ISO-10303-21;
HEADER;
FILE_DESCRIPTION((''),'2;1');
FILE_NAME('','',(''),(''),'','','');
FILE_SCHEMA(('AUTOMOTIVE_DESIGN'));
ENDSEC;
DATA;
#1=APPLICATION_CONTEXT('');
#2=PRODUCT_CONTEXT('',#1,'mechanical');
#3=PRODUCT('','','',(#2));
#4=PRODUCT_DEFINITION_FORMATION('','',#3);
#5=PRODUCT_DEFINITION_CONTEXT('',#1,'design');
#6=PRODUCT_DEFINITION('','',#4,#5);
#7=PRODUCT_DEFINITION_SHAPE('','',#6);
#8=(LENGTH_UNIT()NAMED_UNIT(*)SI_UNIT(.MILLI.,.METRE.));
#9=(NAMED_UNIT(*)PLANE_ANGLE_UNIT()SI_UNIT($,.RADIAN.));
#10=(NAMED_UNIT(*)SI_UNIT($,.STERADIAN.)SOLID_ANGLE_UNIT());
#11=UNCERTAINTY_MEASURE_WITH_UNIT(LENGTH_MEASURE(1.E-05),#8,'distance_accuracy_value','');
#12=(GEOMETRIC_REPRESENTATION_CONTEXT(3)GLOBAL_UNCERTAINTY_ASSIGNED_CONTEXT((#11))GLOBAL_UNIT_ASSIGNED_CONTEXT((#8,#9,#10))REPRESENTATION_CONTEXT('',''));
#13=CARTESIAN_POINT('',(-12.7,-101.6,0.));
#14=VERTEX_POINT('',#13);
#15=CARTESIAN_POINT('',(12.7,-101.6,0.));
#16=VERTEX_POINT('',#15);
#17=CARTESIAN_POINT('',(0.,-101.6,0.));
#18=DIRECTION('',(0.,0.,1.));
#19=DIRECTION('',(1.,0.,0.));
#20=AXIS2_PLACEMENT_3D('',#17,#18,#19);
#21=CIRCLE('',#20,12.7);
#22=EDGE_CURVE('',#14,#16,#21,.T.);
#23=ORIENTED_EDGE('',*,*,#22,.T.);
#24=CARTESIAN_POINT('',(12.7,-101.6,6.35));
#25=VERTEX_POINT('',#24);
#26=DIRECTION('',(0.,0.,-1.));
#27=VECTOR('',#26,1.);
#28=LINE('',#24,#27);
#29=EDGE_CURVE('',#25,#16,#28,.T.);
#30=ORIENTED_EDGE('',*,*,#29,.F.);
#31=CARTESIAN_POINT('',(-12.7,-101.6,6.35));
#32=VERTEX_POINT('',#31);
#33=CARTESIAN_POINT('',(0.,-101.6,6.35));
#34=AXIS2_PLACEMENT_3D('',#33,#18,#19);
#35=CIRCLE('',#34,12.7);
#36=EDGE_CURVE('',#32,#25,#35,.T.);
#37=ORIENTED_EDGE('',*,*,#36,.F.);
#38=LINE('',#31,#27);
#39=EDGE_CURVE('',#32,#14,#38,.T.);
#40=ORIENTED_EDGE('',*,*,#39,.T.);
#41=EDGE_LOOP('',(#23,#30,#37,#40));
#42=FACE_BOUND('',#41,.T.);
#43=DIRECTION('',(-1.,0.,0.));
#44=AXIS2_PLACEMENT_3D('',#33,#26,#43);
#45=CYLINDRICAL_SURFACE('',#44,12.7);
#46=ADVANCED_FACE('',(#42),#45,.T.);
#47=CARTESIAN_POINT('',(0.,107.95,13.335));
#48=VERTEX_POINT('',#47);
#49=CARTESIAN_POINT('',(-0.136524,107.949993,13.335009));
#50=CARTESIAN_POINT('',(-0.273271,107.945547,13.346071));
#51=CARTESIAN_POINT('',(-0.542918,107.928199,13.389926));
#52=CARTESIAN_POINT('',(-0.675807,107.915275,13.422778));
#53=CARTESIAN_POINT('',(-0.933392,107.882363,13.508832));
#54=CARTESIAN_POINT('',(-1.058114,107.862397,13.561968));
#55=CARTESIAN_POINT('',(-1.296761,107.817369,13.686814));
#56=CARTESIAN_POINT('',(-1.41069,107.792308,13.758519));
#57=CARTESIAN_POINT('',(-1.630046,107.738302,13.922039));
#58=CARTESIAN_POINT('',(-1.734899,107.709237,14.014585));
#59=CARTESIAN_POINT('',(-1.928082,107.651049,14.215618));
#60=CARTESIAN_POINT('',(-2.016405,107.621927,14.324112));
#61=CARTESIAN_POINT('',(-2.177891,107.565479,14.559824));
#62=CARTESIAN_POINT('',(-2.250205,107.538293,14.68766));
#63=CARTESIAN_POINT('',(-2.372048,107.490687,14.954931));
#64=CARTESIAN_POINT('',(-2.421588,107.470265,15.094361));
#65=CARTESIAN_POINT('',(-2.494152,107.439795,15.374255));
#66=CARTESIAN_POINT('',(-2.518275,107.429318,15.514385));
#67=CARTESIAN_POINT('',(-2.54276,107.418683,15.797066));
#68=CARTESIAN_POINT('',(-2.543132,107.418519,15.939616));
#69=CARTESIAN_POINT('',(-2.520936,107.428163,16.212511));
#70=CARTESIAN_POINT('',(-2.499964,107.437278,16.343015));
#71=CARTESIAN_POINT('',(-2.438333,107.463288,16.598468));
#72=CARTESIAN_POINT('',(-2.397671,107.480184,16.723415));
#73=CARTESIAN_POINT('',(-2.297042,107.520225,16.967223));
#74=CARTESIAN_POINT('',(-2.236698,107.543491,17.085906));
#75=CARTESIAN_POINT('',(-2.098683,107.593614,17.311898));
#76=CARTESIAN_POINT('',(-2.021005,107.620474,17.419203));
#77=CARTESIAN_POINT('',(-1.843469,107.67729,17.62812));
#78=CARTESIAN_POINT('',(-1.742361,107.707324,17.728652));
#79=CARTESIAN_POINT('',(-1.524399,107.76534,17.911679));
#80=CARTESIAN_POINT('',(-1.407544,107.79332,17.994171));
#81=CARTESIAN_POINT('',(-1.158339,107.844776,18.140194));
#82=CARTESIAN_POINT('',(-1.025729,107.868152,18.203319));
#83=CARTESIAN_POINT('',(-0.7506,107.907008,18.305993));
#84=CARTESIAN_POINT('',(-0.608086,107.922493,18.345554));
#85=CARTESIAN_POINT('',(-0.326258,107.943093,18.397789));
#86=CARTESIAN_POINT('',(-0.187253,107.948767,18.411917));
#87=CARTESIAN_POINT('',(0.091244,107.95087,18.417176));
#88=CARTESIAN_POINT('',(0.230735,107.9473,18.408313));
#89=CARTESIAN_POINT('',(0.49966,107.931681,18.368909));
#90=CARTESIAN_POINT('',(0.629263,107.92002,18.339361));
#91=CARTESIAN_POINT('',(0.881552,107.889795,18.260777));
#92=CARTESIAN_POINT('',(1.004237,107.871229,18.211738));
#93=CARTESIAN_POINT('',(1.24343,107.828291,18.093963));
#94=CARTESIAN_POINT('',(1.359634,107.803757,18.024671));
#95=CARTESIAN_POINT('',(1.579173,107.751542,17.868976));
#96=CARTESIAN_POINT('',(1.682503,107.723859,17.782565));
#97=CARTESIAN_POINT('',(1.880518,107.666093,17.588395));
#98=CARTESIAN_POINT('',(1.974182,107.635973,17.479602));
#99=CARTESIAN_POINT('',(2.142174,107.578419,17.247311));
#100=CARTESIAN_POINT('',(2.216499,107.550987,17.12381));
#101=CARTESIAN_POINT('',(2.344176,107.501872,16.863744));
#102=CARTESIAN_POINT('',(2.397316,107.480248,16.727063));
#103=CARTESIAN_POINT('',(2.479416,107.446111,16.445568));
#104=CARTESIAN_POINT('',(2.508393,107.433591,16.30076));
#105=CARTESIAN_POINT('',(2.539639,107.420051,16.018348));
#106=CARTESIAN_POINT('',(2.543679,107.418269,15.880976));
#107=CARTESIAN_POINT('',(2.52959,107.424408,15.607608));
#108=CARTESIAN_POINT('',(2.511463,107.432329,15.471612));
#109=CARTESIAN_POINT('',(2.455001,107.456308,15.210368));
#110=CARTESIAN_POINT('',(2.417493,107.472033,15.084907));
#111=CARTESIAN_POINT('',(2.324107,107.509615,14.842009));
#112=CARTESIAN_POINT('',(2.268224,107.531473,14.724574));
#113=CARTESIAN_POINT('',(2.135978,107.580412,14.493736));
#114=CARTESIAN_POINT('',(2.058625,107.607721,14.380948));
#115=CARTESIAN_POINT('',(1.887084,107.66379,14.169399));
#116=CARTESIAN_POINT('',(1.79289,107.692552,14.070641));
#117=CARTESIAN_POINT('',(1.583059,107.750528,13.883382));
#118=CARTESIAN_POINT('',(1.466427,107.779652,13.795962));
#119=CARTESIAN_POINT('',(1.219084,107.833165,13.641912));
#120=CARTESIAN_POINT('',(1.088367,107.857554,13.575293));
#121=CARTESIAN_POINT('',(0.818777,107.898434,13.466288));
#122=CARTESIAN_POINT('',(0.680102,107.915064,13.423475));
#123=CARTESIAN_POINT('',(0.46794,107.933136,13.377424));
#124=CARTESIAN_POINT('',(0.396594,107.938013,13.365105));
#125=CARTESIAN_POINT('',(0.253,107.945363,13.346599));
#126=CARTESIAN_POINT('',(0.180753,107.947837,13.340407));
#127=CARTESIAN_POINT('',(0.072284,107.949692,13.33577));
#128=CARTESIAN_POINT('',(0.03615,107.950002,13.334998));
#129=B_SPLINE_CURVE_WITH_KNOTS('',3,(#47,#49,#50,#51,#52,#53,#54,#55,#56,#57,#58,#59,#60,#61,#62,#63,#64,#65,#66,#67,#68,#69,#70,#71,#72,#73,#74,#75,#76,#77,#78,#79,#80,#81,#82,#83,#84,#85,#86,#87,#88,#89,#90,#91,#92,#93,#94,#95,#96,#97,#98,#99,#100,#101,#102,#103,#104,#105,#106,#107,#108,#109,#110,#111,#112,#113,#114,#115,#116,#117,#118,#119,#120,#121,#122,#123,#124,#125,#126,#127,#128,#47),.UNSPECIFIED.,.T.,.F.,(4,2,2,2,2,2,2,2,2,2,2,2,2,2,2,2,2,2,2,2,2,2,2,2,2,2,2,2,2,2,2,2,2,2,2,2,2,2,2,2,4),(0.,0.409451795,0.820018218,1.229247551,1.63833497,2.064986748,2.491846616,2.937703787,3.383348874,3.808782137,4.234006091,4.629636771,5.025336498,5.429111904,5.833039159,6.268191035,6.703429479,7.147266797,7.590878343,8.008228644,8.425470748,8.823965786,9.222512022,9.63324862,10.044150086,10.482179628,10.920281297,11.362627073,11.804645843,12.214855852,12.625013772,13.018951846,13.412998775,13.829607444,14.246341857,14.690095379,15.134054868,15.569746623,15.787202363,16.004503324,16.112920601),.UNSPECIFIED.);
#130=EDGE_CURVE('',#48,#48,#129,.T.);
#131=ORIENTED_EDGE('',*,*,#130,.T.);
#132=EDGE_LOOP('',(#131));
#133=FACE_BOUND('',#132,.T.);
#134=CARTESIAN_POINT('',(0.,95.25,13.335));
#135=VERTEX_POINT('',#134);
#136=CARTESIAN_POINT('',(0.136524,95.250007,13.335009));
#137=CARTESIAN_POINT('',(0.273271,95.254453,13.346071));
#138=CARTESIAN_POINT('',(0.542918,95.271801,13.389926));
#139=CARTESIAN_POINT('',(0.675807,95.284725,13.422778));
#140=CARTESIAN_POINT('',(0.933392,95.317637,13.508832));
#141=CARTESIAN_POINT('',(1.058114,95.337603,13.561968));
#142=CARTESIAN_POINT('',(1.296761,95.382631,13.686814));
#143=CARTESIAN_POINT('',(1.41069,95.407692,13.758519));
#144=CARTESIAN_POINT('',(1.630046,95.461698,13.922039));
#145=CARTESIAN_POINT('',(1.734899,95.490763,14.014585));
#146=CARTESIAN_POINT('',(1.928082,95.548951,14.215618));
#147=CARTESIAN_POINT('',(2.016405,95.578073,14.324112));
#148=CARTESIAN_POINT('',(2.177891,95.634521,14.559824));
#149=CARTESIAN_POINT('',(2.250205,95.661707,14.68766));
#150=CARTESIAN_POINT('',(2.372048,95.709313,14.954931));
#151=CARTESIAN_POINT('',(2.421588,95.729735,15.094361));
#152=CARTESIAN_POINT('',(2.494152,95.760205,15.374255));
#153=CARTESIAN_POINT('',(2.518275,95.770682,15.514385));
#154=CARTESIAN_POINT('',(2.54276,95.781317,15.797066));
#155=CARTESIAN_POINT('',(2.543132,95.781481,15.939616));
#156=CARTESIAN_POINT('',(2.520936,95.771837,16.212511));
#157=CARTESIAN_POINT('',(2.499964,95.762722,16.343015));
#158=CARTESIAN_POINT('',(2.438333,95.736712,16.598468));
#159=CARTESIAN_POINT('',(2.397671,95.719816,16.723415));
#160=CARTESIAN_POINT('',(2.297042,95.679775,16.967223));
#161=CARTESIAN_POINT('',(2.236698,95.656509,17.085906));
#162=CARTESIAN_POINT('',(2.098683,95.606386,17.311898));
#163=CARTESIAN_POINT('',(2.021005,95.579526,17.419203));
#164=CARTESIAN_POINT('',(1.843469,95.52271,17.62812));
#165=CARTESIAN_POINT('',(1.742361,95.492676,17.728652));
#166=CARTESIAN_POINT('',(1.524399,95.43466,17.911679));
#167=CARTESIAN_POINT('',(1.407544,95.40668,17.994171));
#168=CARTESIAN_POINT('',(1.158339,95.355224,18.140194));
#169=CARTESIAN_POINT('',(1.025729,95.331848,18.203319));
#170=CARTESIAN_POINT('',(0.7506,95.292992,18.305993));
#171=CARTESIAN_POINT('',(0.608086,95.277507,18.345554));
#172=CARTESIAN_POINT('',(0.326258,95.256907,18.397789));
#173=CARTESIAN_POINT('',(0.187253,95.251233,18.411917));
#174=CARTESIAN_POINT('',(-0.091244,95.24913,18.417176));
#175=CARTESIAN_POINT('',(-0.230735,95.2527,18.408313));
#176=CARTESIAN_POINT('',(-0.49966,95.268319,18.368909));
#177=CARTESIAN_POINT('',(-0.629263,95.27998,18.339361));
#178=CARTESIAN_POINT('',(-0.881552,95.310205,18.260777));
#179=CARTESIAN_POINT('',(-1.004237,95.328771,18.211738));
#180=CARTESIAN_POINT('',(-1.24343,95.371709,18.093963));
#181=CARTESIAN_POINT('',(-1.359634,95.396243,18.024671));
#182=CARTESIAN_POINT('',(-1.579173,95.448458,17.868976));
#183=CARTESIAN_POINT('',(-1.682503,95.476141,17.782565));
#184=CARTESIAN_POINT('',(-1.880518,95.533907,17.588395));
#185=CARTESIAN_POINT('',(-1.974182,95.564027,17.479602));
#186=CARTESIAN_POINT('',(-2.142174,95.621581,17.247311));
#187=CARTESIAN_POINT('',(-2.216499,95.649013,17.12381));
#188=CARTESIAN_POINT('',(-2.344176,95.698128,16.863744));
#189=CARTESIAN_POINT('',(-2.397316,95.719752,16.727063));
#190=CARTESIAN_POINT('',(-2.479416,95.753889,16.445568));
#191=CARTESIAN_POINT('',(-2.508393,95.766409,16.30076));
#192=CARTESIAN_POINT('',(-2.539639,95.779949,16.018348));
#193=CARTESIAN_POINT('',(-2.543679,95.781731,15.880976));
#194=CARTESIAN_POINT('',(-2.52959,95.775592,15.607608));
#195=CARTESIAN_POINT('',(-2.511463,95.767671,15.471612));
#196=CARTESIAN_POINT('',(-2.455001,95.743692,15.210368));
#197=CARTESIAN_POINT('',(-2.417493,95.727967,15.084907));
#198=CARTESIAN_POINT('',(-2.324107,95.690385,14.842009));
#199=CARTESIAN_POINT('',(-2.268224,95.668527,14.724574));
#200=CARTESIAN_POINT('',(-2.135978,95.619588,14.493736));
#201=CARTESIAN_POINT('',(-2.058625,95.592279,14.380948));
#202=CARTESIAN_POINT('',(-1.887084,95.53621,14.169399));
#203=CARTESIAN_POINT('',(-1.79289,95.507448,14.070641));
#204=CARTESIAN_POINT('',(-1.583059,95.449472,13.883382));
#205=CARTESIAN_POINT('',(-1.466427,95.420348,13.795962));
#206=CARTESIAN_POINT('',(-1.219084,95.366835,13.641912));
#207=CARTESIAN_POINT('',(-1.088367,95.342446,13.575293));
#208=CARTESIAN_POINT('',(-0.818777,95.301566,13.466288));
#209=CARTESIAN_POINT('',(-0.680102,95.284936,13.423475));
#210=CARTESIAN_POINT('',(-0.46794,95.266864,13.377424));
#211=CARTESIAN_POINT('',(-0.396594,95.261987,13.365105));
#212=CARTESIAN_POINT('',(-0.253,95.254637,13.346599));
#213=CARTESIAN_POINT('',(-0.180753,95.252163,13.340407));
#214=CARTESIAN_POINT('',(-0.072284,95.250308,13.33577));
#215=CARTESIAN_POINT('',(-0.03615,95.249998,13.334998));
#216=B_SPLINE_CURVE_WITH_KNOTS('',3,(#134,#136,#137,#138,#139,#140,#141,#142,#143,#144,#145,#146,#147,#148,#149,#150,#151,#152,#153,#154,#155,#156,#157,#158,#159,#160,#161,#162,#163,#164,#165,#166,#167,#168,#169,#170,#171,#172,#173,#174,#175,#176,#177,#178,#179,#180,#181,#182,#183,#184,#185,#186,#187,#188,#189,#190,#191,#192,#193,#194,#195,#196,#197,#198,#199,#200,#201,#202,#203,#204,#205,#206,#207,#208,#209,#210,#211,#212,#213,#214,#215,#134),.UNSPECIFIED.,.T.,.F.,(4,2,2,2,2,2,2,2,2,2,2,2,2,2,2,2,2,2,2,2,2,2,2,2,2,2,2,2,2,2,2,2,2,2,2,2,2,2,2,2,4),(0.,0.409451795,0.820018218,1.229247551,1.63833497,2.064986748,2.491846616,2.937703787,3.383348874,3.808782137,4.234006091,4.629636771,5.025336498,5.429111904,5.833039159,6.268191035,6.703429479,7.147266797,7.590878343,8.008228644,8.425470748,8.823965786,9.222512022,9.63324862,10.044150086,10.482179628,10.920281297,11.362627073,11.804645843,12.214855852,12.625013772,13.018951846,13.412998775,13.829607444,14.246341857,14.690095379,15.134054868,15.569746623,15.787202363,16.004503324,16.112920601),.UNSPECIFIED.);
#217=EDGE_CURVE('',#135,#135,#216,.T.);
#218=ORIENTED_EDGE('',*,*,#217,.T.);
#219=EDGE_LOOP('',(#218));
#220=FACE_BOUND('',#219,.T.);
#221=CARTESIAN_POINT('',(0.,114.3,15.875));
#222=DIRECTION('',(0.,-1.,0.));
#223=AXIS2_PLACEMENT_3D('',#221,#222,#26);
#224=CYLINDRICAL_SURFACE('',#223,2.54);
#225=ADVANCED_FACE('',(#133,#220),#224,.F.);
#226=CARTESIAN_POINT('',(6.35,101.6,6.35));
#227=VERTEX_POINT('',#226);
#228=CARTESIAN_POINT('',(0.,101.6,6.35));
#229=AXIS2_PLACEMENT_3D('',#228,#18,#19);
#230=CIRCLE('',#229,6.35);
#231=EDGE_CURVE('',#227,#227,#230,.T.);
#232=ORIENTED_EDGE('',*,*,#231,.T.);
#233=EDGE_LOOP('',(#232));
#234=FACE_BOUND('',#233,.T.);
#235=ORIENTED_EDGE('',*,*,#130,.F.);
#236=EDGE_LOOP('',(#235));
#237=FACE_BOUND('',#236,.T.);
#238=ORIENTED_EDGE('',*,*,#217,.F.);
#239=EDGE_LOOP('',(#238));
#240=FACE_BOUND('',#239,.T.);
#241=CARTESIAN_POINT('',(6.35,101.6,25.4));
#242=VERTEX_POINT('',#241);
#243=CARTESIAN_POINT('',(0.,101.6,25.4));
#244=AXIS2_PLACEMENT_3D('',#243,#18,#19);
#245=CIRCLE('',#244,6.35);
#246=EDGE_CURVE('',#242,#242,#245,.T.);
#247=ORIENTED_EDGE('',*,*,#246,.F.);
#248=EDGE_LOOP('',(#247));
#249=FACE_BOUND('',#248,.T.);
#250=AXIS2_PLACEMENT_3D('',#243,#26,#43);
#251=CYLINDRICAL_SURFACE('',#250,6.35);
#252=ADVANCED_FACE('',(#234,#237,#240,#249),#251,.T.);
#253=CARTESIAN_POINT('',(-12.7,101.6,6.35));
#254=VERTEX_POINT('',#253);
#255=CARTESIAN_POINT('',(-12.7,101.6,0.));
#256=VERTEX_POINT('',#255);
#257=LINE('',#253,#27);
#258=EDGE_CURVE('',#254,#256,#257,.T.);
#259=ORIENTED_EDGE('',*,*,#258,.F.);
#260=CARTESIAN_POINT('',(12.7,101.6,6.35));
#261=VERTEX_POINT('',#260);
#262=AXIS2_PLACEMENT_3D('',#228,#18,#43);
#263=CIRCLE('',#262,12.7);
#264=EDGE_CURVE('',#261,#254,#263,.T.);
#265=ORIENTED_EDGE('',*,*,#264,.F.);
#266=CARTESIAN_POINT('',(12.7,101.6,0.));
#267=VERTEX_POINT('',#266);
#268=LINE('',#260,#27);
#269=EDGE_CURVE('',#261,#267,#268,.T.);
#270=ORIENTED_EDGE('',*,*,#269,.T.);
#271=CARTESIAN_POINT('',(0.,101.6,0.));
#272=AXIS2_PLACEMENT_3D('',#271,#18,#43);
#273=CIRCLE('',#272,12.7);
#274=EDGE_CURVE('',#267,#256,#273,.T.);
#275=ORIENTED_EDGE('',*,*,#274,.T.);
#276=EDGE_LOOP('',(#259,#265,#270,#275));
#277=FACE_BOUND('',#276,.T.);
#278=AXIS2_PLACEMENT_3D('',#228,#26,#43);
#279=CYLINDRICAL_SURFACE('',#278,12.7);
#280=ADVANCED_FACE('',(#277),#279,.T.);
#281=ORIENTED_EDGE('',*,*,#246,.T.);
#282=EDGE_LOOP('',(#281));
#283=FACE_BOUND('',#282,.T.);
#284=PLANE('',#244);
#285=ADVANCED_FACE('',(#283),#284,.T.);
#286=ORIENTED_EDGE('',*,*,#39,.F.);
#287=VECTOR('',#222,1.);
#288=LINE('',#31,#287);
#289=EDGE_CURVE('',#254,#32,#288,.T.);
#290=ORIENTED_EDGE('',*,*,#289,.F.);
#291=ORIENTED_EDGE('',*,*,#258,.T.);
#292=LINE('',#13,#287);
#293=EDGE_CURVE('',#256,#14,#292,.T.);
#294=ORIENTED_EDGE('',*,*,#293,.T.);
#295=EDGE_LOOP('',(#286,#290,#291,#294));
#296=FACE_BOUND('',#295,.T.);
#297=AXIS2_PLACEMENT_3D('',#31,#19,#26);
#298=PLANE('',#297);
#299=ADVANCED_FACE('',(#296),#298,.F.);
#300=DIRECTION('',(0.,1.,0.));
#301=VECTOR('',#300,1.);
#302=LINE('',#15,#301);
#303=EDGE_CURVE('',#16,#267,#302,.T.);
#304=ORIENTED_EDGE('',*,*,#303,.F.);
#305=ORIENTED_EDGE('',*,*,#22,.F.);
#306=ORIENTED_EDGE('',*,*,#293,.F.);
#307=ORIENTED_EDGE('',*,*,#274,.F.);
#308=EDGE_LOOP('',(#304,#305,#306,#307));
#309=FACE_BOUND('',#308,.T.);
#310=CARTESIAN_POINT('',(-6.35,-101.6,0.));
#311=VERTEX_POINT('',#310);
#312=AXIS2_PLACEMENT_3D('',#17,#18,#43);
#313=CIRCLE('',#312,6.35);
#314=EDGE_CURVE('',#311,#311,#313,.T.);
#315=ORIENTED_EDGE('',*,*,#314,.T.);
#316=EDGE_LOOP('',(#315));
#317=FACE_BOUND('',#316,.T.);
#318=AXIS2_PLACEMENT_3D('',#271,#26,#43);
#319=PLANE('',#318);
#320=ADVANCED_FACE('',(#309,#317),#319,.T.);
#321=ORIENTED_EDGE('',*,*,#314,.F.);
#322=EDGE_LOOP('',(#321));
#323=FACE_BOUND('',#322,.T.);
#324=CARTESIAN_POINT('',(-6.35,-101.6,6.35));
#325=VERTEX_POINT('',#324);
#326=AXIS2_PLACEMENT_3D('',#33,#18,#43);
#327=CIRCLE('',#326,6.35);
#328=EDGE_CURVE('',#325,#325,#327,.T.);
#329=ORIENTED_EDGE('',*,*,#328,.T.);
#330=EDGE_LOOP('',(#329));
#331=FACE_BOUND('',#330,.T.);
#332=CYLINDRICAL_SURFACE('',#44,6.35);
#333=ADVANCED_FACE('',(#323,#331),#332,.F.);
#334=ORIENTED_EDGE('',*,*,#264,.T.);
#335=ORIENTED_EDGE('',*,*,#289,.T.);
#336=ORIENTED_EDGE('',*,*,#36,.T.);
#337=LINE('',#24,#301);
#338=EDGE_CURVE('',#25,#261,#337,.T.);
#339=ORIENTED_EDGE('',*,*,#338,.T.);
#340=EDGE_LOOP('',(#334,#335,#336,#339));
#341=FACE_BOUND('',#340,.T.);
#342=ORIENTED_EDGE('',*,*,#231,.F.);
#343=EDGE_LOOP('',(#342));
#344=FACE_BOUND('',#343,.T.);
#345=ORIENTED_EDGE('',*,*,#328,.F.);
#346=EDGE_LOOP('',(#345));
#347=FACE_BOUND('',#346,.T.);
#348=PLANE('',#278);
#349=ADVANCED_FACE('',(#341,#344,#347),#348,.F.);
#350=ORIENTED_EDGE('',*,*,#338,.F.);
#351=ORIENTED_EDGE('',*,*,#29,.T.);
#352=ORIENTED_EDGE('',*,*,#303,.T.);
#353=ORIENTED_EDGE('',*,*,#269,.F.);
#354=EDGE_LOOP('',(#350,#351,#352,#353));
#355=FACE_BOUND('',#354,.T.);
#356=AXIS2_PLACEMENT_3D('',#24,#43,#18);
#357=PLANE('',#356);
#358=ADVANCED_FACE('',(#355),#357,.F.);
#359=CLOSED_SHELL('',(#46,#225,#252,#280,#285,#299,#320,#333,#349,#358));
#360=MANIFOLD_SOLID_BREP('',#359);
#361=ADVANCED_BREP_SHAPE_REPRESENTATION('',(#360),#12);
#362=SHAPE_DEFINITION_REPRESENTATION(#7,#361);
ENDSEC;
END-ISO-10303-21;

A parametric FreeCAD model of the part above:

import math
import FreeCAD as App
import Part
import Sketcher

V = App.Vector
Q = App.Units.Quantity

doc = App.newDocument("Part")
body = doc.addObject("PartDesign::Body", "Body")

# Sketch on XY plane
sketch1 = body.newObject("Sketcher::SketchObject", "Sketch")
sketch1.AttachmentSupport = (doc.getObject("XY_Plane"), [""])
sketch1.MapMode = "FlatFace"
sketch1.addGeometry(Part.LineSegment(V(-12.7, 101.6, 0), V(-12.7, -101.6, 0)), False)
sketch1.addGeometry(Part.ArcOfCircle(Part.Circle(V(0, -101.6, 0), V(0, 0, 1), 12.7), math.radians(180), math.radians(360)), False)
sketch1.addGeometry(Part.LineSegment(V(12.7, -101.6, 0), V(12.7, 101.6, 0)), False)
sketch1.addGeometry(Part.ArcOfCircle(Part.Circle(V(0, 101.6, 0), V(0, 0, 1), 12.7), math.radians(0), math.radians(180)), False)
sketch1.addGeometry(Part.Circle(V(0, -101.6, 0), V(0, 0, 1), 6.35), False)
sketch1.addGeometry(Part.Circle(V(0, 101.6, 0), V(0, 0, 1), 6.35), False)
sketch1.addConstraint(Sketcher.Constraint("Tangent", 0, 2, 1, 1))
sketch1.addConstraint(Sketcher.Constraint("Tangent", 1, 2, 2, 1))
sketch1.addConstraint(Sketcher.Constraint("Tangent", 2, 2, 3, 1))
sketch1.addConstraint(Sketcher.Constraint("Tangent", 3, 2, 0, 1))
sketch1.addConstraint(Sketcher.Constraint("Vertical", 0))
sketch1.addConstraint(Sketcher.Constraint("Vertical", 2))
sketch1.addConstraint(Sketcher.Constraint("Coincident", 4, 3, 1, 3))
sketch1.addConstraint(Sketcher.Constraint("Coincident", 5, 3, 3, 3))
sketch1.addConstraint(Sketcher.Constraint("Equal", 4, 5))
sketch1.addConstraint(Sketcher.Constraint("Symmetric", 1, 3, 3, 3, -1, 1))
sketch1.addConstraint(Sketcher.Constraint("Diameter", 4, Q("0.5 in")))
sketch1.addConstraint(Sketcher.Constraint("Radius", 1, Q("0.5 in")))
sketch1.addConstraint(Sketcher.Constraint("DistanceY", 0, 2, 0, 1, Q("8 in")))
pad1 = body.newObject("PartDesign::Pad", "Pad")
pad1.Profile = sketch1
pad1.Length = Q("0.25 in")

# Sketch on XY plane
sketch2 = body.newObject("Sketcher::SketchObject", "Sketch001")
sketch2.AttachmentSupport = (doc.getObject("XY_Plane"), [""])
sketch2.MapMode = "FlatFace"
sketch2.addGeometry(Part.Circle(V(0, 101.6, 0), V(0, 0, 1), 6.35), False)
sketch2.addConstraint(Sketcher.Constraint("PointOnObject", 0, 3, -2))
sketch2.addConstraint(Sketcher.Constraint("Diameter", 0, Q("0.5 in")))
sketch2.addConstraint(Sketcher.Constraint("DistanceY", -1, 1, 0, 3, Q("4 in")))
pad2 = body.newObject("PartDesign::Pad", "Pad001")
pad2.Profile = sketch2
pad2.Length = Q("1 in")

# Sketch on XZ plane
sketch3 = body.newObject("Sketcher::SketchObject", "Sketch002")
sketch3.AttachmentSupport = (doc.getObject("XZ_Plane"), [""])
sketch3.MapMode = "FlatFace"
sketch3.addGeometry(Part.Circle(V(0, 15.875, 0), V(0, 0, 1), 2.54), False)
sketch3.addConstraint(Sketcher.Constraint("PointOnObject", 0, 3, -2))
sketch3.addConstraint(Sketcher.Constraint("Diameter", 0, Q("0.2 in")))
sketch3.addConstraint(Sketcher.Constraint("DistanceY", -1, 1, 0, 3, Q("0.625 in")))
pocket1 = body.newObject("PartDesign::Pocket", "Pocket")
pocket1.Profile = sketch3
pocket1.Type = "ThroughAll"

doc.recompute()
